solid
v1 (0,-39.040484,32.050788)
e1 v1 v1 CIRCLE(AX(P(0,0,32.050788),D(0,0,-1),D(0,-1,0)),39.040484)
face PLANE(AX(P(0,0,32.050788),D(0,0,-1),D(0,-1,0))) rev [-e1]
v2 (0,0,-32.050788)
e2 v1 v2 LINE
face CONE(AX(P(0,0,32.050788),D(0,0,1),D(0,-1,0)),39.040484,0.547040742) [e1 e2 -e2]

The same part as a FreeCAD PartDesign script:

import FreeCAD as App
import Part
import Sketcher
from FreeCAD import Vector
Q = App.Units.Quantity

doc = App.newDocument("Part")
body = doc.addObject("PartDesign::Body", "Body")

sketch1 = body.newObject("Sketcher::SketchObject", "Sketch")
sketch1.AttachmentSupport = (doc.getObject("YZ_Plane"), [""])
sketch1.MapMode = "FlatFace"
sketch1.addGeometry(Part.LineSegment(Vector(0, -32, 0), Vector(0, 32, 0)), False)
sketch1.addGeometry(Part.LineSegment(Vector(0, 32, 0), Vector(-39, 32, 0)), False)
sketch1.addGeometry(Part.LineSegment(Vector(-39, 32, 0), Vector(0, -32, 0)), False)
sketch1.addConstraint(Sketcher.Constraint("Coincident", 0, 2, 1, 1))
sketch1.addConstraint(Sketcher.Constraint("Coincident", 1, 2, 2, 1))
sketch1.addConstraint(Sketcher.Constraint("Coincident", 2, 2, 0, 1))
sketch1.addConstraint(Sketcher.Constraint("Vertical", 0))
sketch1.addConstraint(Sketcher.Constraint("Horizontal", 1))
sketch1.addConstraint(Sketcher.Constraint("Symmetric", 0, 2, 2, 2, -1, 1))
sketch1.addConstraint(Sketcher.Constraint("DistanceX", 1, 2, 1, 1, Q("39.040484 mm")))
sketch1.addConstraint(Sketcher.Constraint("DistanceY", 0, 1, 0, 2, Q("64.101576 mm")))
revolution = body.newObject("PartDesign::Revolution", "Revolution")
revolution.Profile = sketch1
revolution.ReferenceAxis = (sketch1, ["V_Axis"])
revolution.Angle = 360

doc.recompute()
